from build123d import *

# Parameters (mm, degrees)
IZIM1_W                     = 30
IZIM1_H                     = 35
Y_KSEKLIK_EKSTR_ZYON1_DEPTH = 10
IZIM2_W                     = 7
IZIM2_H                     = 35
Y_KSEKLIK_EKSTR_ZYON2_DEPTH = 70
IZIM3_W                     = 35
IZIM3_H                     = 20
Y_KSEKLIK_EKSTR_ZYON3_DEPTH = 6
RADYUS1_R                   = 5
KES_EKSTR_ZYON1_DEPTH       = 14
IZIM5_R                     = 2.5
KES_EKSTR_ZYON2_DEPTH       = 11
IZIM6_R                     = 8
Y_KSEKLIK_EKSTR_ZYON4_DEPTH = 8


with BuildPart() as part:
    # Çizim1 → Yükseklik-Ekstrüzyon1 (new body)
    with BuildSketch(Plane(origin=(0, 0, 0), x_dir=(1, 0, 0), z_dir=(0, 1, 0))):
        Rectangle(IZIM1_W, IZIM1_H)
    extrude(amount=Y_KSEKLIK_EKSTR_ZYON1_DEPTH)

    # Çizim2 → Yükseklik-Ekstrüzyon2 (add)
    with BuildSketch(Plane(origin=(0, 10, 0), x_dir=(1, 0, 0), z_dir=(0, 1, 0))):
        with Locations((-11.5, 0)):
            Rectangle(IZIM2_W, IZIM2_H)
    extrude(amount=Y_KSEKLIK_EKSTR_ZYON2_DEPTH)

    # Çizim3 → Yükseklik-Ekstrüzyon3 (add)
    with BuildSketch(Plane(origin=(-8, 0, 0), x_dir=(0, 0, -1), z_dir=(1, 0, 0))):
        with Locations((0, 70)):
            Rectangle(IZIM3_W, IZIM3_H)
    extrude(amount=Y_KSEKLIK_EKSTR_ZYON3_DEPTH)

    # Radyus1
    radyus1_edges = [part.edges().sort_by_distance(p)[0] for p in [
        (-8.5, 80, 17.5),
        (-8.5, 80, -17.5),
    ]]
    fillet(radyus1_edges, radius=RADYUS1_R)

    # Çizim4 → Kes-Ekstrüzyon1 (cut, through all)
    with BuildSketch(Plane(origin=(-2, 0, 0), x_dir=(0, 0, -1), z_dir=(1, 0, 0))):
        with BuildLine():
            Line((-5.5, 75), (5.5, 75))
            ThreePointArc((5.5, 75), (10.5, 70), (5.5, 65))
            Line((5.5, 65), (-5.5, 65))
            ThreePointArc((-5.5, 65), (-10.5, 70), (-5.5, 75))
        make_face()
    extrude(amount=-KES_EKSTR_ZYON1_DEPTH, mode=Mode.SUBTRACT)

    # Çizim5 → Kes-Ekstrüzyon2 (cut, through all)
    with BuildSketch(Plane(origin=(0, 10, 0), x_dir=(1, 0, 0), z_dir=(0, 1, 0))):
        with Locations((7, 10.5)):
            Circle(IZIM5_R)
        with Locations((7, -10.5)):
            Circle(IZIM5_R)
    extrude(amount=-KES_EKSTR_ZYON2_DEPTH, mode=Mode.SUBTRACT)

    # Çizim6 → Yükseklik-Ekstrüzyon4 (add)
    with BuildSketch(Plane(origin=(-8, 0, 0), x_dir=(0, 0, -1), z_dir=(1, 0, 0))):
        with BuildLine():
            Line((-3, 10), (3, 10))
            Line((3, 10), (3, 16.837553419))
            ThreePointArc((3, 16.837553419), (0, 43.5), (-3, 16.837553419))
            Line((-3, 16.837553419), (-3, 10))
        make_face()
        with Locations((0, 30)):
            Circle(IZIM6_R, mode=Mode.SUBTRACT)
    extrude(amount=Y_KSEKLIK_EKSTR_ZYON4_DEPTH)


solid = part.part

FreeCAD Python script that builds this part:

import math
import FreeCAD as App
import Part
import Sketcher


def edges_at(feature, points):
    """Names of the edges that pass closest to the given points."""
    edges = feature.Shape.Edges
    near = lambda p: min(range(len(edges)), key=lambda i: edges[i].distToShape(Part.Vertex(*p))[0])
    return sorted({f"Edge{near(p) + 1}" for p in points})

doc = App.newDocument("Part")
params = doc.addObject("Spreadsheet::Sheet", "Params")
for row, (alias, value) in enumerate([
    ("sketch1_width", "30 mm"),
    ("sketch1_height", "35 mm"),
    ("pad1_length", "10 mm"),
    ("sketch2_width", "7 mm"),
    ("sketch2_height", "35 mm"),
    ("pad2_length", "70 mm"),
    ("sketch3_width", "20 mm"),
    ("sketch3_height", "35 mm"),
    ("pad3_length", "6 mm"),
    ("fillet_radius", "5 mm"),
    ("sketch4_radius", "5 mm"),
    ("sketch4_height", "11 mm"),
    ("sketch5_diameter", "5 mm"),
    ("sketch6_diameter", "16 mm"),
    ("sketch6_radius", "13.5 mm"),
    ("sketch6_height", "6 mm"),
    ("pad4_length", "8 mm"),
], start=1):
    params.set(f"A{row}", alias)
    params.set(f"B{row}", "=" + value)
    params.setAlias(f"B{row}", alias)

body = doc.addObject("PartDesign::Body", "Body")

# Sketch on XZ plane
sketch1 = body.newObject("Sketcher::SketchObject", "Sketch")
sketch1.AttachmentSupport = (doc.getObject("XZ_Plane"), [""])
sketch1.MapMode = "FlatFace"
sketch1.addGeometry([
    Part.LineSegment(App.Vector(-15, -17.5, 0), App.Vector(-15, 17.5, 0)),
    Part.LineSegment(App.Vector(-15, 17.5, 0), App.Vector(15, 17.5, 0)),
    Part.LineSegment(App.Vector(15, 17.5, 0), App.Vector(15, -17.5, 0)),
    Part.LineSegment(App.Vector(15, -17.5, 0), App.Vector(-15, -17.5, 0)),
], False)
sketch1.addConstraint([
    Sketcher.Constraint("Coincident", 0, 2, 1, 1),
    Sketcher.Constraint("Coincident", 1, 2, 2, 1),
    Sketcher.Constraint("Coincident", 2, 2, 3, 1),
    Sketcher.Constraint("Coincident", 3, 2, 0, 1),
    Sketcher.Constraint("Vertical", 0),
    Sketcher.Constraint("Horizontal", 1),
    Sketcher.Constraint("Vertical", 2),
    Sketcher.Constraint("Horizontal", 3),
    Sketcher.Constraint("Symmetric", 0, 2, 2, 2, -1, 1),
    Sketcher.Constraint("DistanceX", 1, 1, 1, 2, 30.0),
    Sketcher.Constraint("DistanceY", 0, 1, 0, 2, 35.0),
])
sketch1.setExpression("Constraints[9]", "Params.sketch1_width")
sketch1.setExpression("Constraints[10]", "Params.sketch1_height")
pad1 = body.newObject("PartDesign::Pad", "Pad")
pad1.Profile = sketch1
pad1.setExpression("Length", "Params.pad1_length")
pad1.Reversed = True

# Sketch on XZ plane
sketch2 = body.newObject("Sketcher::SketchObject", "Sketch001")
sketch2.AttachmentSupport = (doc.getObject("XZ_Plane"), [""])
sketch2.MapMode = "FlatFace"
sketch2.AttachmentOffset = App.Placement(App.Vector(0, 0, -10), App.Rotation())
sketch2.addGeometry([
    Part.LineSegment(App.Vector(-15, -17.5, 0), App.Vector(-15, 17.5, 0)),
    Part.LineSegment(App.Vector(-15, 17.5, 0), App.Vector(-8, 17.5, 0)),
    Part.LineSegment(App.Vector(-8, 17.5, 0), App.Vector(-8, -17.5, 0)),
    Part.LineSegment(App.Vector(-8, -17.5, 0), App.Vector(-15, -17.5, 0)),
], False)
sketch2.addConstraint([
    Sketcher.Constraint("Coincident", 0, 2, 1, 1),
    Sketcher.Constraint("Coincident", 1, 2, 2, 1),
    Sketcher.Constraint("Coincident", 2, 2, 3, 1),
    Sketcher.Constraint("Coincident", 3, 2, 0, 1),
    Sketcher.Constraint("Vertical", 0),
    Sketcher.Constraint("Horizontal", 1),
    Sketcher.Constraint("Vertical", 2),
    Sketcher.Constraint("Horizontal", 3),
    Sketcher.Constraint("DistanceX", 1, 1, 1, 2, 7.0),
    Sketcher.Constraint("DistanceY", 0, 1, 0, 2, 35.0),
    Sketcher.Constraint("DistanceX", 0, 2, -1, 1, 15.0),
    Sketcher.Constraint("DistanceY", -1, 1, 0, 2, 17.5),
])
sketch2.setExpression("Constraints[8]", "Params.sketch2_width")
sketch2.setExpression("Constraints[9]", "Params.sketch2_height")
pad2 = body.newObject("PartDesign::Pad", "Pad001")
pad2.Profile = sketch2
pad2.setExpression("Length", "Params.pad2_length")
pad2.Reversed = True

# Sketch on YZ plane
sketch3 = body.newObject("Sketcher::SketchObject", "Sketch002")
sketch3.AttachmentSupport = (doc.getObject("YZ_Plane"), [""])
sketch3.MapMode = "FlatFace"
sketch3.AttachmentOffset = App.Placement(App.Vector(0, 0, -8), App.Rotation())
sketch3.addGeometry([
    Part.LineSegment(App.Vector(80, 17.5, 0), App.Vector(60, 17.5, 0)),
    Part.LineSegment(App.Vector(60, 17.5, 0), App.Vector(60, -17.5, 0)),
    Part.LineSegment(App.Vector(60, -17.5, 0), App.Vector(80, -17.5, 0)),
    Part.LineSegment(App.Vector(80, -17.5, 0), App.Vector(80, 17.5, 0)),
], False)
sketch3.addConstraint([
    Sketcher.Constraint("Coincident", 0, 2, 1, 1),
    Sketcher.Constraint("Coincident", 1, 2, 2, 1),
    Sketcher.Constraint("Coincident", 2, 2, 3, 1),
    Sketcher.Constraint("Coincident", 3, 2, 0, 1),
    Sketcher.Constraint("Horizontal", 0),
    Sketcher.Constraint("Vertical", 1),
    Sketcher.Constraint("Horizontal", 2),
    Sketcher.Constraint("Vertical", 3),
    Sketcher.Constraint("DistanceX", 0, 2, 0, 1, 20.0),
    Sketcher.Constraint("DistanceY", 1, 2, 1, 1, 35.0),
    Sketcher.Constraint("DistanceX", -1, 1, 0, 2, 60.0),
    Sketcher.Constraint("DistanceY", -1, 1, 0, 2, 17.5),
])
sketch3.setExpression("Constraints[8]", "Params.sketch3_width")
sketch3.setExpression("Constraints[9]", "Params.sketch3_height")
pad3 = body.newObject("PartDesign::Pad", "Pad002")
pad3.Profile = sketch3
pad3.setExpression("Length", "Params.pad3_length")
doc.recompute()

fillet = body.newObject("PartDesign::Fillet", "Fillet")
fillet.Base = (pad3, edges_at(pad3, [(-8.5, 80, 17.5), (-8.5, 80, -17.5)]))
fillet.setExpression("Radius", "Params.fillet_radius")

# Sketch on YZ plane
sketch4 = body.newObject("Sketcher::SketchObject", "Sketch003")
sketch4.AttachmentSupport = (doc.getObject("YZ_Plane"), [""])
sketch4.MapMode = "FlatFace"
sketch4.AttachmentOffset = App.Placement(App.Vector(0, 0, -2), App.Rotation())
sketch4.addGeometry([
    Part.LineSegment(App.Vector(75, -5.5, 0), App.Vector(75, 5.5, 0)),
    Part.ArcOfCircle(Part.Circle(App.Vector(70, 5.5, 0), App.Vector(0, 0, 1), 5), math.radians(0), math.radians(180)),
    Part.LineSegment(App.Vector(65, 5.5, 0), App.Vector(65, -5.5, 0)),
    Part.ArcOfCircle(Part.Circle(App.Vector(70, -5.5, 0), App.Vector(0, 0, 1), 5), math.radians(180), math.radians(360)),
], False)
sketch4.addConstraint([
    Sketcher.Constraint("Tangent", 0, 2, 1, 1),
    Sketcher.Constraint("Tangent", 1, 2, 2, 1),
    Sketcher.Constraint("Tangent", 2, 2, 3, 1),
    Sketcher.Constraint("Tangent", 3, 2, 0, 1),
    Sketcher.Constraint("Vertical", 0),
    Sketcher.Constraint("Vertical", 2),
    Sketcher.Constraint("Radius", 1, 5.0),
    Sketcher.Constraint("DistanceY", 0, 1, 0, 2, 11.0),
    Sketcher.Constraint("DistanceX", -1, 1, 1, 3, 70.0),
    Sketcher.Constraint("DistanceY", -1, 1, 1, 3, 5.5),
])
sketch4.setExpression("Constraints[6]", "Params.sketch4_radius")
sketch4.setExpression("Constraints[7]", "Params.sketch4_height")
pocket1 = body.newObject("PartDesign::Pocket", "Pocket")
pocket1.Profile = sketch4
pocket1.Type = "ThroughAll"

# Sketch on XZ plane
sketch5 = body.newObject("Sketcher::SketchObject", "Sketch004")
sketch5.AttachmentSupport = (doc.getObject("XZ_Plane"), [""])
sketch5.MapMode = "FlatFace"
sketch5.AttachmentOffset = App.Placement(App.Vector(0, 0, -10), App.Rotation())
sketch5.addGeometry([
    Part.Circle(App.Vector(7, -10.5, 0), App.Vector(0, 0, 1), 2.5),
    Part.Circle(App.Vector(7, 10.5, 0), App.Vector(0, 0, 1), 2.5),
], False)
sketch5.addConstraint([
    Sketcher.Constraint("Equal", 0, 1),
    Sketcher.Constraint("Symmetric", 0, 3, 1, 3, -1),
    Sketcher.Constraint("Diameter", 0, 5.0),
    Sketcher.Constraint("DistanceX", -1, 1, 0, 3, 7.0),
    Sketcher.Constraint("DistanceY", 0, 3, 1, 3, 21.0),
])
sketch5.setExpression("Constraints[2]", "Params.sketch5_diameter")
pocket2 = body.newObject("PartDesign::Pocket", "Pocket001")
pocket2.Profile = sketch5
pocket2.Type = "ThroughAll"
pocket2.Reversed = True

# Sketch on YZ plane
sketch6 = body.newObject("Sketcher::SketchObject", "Sketch005")
sketch6.AttachmentSupport = (doc.getObject("YZ_Plane"), [""])
sketch6.MapMode = "FlatFace"
sketch6.AttachmentOffset = App.Placement(App.Vector(0, 0, -8), App.Rotation())
sketch6.addGeometry([
    Part.LineSegment(App.Vector(10, 3, 0), App.Vector(10, -3, 0)),  # 0
    Part.LineSegment(App.Vector(10, -3, 0), App.Vector(16.837553, -3, 0)),  # 1
    Part.ArcOfCircle(Part.Circle(App.Vector(30, 0, 0), App.Vector(0, 0, 1), 13.5), math.radians(-167.160412), math.radians(167.160412)),  # 2
    Part.LineSegment(App.Vector(16.837553, 3, 0), App.Vector(10, 3, 0)),  # 3
    Part.Circle(App.Vector(30, 0, 0), App.Vector(0, 0, 1), 8),  # 4
], False)
sketch6.addConstraint([
    Sketcher.Constraint("Coincident", 0, 2, 1, 1),
    Sketcher.Constraint("Coincident", 1, 2, 2, 1),
    Sketcher.Constraint("Coincident", 2, 2, 3, 1),
    Sketcher.Constraint("Coincident", 3, 2, 0, 1),
    Sketcher.Constraint("Vertical", 0),
    Sketcher.Constraint("Horizontal", 1),
    Sketcher.Constraint("Horizontal", 3),
    Sketcher.Constraint("Coincident", 4, 3, 2, 3),
    Sketcher.Constraint("Symmetric", 1, 2, 2, 2, -1),
    Sketcher.Constraint("Diameter", 4, 16.0),
    Sketcher.Constraint("Radius", 2, 13.5),
    Sketcher.Constraint("DistanceY", 0, 2, 0, 1, 6.0),
    Sketcher.Constraint("DistanceX", -1, 1, 2, 3, 30.0),
    Sketcher.Constraint("DistanceX", -1, 1, 0, 2, 10.0),
])
sketch6.setExpression("Constraints[9]", "Params.sketch6_diameter")
sketch6.setExpression("Constraints[10]", "Params.sketch6_radius")
sketch6.setExpression("Constraints[11]", "Params.sketch6_height")
pad4 = body.newObject("PartDesign::Pad", "Pad003")
pad4.Profile = sketch6
pad4.setExpression("Length", "Params.pad4_length")

doc.recompute()
